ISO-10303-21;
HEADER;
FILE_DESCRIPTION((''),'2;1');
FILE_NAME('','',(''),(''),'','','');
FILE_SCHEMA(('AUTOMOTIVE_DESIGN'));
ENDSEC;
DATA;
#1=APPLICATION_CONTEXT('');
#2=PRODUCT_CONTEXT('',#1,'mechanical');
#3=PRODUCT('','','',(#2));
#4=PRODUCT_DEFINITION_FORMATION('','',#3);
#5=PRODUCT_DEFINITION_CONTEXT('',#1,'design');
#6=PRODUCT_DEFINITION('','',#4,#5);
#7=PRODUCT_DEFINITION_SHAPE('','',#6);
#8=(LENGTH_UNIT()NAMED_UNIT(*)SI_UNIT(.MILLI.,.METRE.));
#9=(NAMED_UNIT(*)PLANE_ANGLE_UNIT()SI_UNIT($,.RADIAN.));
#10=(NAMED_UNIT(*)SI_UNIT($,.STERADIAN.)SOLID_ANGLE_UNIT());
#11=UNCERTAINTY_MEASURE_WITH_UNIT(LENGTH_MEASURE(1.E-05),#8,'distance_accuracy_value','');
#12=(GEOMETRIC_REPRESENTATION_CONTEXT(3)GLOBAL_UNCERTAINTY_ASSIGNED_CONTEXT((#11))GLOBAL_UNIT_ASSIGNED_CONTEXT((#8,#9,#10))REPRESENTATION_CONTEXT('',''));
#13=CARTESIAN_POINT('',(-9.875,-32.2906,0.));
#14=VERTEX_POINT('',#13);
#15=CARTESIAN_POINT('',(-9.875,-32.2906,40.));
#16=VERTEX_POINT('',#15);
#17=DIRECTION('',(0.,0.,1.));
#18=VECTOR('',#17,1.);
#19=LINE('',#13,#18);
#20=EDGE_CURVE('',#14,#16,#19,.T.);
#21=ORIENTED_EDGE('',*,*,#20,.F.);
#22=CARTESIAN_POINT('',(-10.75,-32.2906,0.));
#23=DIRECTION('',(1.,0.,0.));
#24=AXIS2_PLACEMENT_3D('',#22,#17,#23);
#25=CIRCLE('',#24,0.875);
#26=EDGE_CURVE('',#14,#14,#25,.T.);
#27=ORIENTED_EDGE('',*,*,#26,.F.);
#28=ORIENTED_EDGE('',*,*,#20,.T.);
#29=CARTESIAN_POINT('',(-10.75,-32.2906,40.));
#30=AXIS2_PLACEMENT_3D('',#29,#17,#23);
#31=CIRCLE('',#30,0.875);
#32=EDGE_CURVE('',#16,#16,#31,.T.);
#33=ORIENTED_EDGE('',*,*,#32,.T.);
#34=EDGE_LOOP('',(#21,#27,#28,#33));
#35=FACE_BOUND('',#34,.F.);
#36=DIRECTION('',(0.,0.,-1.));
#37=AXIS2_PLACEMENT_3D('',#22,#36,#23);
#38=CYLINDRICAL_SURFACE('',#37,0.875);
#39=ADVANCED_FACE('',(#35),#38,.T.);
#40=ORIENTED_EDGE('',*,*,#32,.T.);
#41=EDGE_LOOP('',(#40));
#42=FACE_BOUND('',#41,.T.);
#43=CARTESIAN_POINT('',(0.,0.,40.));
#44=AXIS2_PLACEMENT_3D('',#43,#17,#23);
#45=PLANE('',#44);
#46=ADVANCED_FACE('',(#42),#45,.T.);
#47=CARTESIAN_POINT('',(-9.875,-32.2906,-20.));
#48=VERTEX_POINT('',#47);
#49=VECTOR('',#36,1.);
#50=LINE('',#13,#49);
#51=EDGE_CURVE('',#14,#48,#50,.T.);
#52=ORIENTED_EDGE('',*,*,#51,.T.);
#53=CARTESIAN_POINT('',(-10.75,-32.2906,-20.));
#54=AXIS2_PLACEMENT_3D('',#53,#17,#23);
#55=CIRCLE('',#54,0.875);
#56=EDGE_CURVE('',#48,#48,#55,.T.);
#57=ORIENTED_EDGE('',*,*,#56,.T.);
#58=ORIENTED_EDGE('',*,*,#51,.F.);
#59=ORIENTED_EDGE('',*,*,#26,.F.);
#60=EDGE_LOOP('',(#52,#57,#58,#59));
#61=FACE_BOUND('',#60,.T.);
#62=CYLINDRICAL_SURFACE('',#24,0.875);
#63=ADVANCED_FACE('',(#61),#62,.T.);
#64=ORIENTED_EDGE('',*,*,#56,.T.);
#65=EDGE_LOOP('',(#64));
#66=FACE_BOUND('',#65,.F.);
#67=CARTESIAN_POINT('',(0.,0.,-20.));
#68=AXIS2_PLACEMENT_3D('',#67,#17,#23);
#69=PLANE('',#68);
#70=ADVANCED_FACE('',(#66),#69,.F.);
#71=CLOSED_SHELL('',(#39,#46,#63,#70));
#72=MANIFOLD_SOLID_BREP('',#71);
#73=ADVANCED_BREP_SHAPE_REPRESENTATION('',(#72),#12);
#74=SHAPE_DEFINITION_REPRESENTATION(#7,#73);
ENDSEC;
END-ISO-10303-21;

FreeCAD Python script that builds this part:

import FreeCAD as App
import Part
import Sketcher
Q = App.Units.Quantity

doc = App.newDocument("Part")
params = doc.addObject("Spreadsheet::Sheet", "Params")
for row, (alias, value) in enumerate([
    ("sketch1_diameter", "1.75 mm"),
    ("pad1_length", "40 mm"),
    ("pad1_length2", "20 mm"),
], start=1):
    params.set(f"A{row}", alias)
    params.set(f"B{row}", "=" + value)
    params.setAlias(f"B{row}", alias)

body = doc.addObject("PartDesign::Body", "Body")

sketch1 = doc.addObject("Sketcher::SketchObject", "Sketch")
body.addObject(sketch1)
sketch1.AttachmentSupport = (doc.XY_Plane, [""])
sketch1.MapMode = "FlatFace"
sketch1.addGeometry(Part.Circle(App.Vector(-10.8, -32.3, 0), App.Vector(0, 0, 1), 0.9), False)
sketch1.addConstraint([
    Sketcher.Constraint("Diameter", 0, Q("1.75 mm")),
    Sketcher.Constraint("DistanceX", 0, 3, -1, 1, Q("10.75 mm")),
    Sketcher.Constraint("DistanceY", 0, 3, -1, 1, Q("32.2906 mm")),
])
sketch1.setExpression("Constraints[0]", "Params.sketch1_diameter")
pad1 = doc.addObject("PartDesign::Pad", "Pad")
body.addObject(pad1)
pad1.Profile = sketch1
pad1.Type = "TwoLengths"
pad1.setExpression("Length", "Params.pad1_length")
pad1.setExpression("Length2", "Params.pad1_length2")

doc.recompute()
